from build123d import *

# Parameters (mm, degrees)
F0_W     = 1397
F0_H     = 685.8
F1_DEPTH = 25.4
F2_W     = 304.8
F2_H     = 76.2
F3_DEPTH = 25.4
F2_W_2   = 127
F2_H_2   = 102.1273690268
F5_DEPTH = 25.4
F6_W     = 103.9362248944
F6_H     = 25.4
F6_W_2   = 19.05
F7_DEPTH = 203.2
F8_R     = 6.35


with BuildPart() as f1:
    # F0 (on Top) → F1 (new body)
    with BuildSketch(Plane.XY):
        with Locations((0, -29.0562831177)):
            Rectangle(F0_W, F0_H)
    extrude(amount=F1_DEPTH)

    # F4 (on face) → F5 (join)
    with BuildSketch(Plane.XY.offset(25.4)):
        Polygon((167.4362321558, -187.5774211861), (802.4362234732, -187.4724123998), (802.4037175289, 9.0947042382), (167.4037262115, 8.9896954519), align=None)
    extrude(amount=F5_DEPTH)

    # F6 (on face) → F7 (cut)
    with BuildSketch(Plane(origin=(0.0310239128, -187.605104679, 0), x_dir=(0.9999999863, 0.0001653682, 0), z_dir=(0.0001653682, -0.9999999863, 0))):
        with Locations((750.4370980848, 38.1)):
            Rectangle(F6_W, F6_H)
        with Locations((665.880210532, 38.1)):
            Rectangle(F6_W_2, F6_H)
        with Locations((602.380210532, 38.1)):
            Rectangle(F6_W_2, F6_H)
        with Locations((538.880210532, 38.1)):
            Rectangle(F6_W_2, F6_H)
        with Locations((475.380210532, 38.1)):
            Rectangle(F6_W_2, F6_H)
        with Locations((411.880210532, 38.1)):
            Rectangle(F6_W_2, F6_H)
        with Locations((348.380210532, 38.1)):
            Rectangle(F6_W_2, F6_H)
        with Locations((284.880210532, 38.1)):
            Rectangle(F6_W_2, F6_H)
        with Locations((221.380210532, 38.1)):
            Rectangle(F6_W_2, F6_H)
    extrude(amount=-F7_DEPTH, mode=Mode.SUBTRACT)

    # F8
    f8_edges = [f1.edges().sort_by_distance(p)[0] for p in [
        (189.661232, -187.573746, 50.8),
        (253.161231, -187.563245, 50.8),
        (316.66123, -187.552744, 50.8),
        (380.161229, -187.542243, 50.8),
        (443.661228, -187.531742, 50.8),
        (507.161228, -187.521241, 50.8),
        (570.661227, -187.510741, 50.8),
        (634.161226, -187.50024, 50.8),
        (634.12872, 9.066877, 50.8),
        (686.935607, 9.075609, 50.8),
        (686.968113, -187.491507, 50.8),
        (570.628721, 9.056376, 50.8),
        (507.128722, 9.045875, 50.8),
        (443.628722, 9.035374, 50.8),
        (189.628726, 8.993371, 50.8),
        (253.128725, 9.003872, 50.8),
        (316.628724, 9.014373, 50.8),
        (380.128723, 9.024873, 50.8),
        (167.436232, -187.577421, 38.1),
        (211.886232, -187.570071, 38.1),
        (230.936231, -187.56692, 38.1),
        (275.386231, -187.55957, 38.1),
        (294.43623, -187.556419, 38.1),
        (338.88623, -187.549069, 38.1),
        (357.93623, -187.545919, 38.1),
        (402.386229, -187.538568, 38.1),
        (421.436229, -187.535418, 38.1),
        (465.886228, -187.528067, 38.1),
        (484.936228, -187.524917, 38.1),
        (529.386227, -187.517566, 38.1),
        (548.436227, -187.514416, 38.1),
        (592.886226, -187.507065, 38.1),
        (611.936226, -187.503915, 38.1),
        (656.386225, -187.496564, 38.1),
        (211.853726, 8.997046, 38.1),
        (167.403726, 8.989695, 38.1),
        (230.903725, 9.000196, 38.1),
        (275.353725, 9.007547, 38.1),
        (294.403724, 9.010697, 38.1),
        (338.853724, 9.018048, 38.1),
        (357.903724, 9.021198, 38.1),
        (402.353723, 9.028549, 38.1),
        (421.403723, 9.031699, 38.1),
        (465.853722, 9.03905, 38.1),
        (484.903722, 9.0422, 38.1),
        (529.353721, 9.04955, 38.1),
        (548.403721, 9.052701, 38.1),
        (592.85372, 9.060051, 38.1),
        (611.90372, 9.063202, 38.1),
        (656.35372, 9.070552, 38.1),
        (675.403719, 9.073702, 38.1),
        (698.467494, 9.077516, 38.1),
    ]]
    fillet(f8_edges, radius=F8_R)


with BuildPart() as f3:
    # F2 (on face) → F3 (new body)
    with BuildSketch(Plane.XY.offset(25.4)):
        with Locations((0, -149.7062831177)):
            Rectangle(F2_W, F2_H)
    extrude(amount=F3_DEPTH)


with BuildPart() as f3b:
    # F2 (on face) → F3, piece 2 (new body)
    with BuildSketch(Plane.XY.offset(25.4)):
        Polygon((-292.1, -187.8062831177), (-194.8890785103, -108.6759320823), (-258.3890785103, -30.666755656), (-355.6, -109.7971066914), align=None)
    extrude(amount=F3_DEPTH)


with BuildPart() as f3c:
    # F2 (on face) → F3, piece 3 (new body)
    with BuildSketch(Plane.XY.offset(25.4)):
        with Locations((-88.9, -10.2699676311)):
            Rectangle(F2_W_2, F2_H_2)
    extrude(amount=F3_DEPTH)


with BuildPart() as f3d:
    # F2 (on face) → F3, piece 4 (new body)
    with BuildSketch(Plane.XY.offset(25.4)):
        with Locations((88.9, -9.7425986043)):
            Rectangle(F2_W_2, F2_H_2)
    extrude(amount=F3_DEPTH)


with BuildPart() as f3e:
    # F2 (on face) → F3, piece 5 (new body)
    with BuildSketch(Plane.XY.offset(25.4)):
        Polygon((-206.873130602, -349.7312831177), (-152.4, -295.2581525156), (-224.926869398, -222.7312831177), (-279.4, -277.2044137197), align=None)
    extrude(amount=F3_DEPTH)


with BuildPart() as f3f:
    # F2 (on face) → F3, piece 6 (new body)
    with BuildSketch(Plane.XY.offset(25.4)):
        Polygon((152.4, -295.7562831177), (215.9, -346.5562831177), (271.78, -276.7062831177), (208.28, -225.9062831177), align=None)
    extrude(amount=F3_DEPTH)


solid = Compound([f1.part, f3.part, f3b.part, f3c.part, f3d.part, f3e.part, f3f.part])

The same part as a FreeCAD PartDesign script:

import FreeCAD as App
import Part
import Sketcher

V = App.Vector
Q = App.Units.Quantity


def edges_at(feature, points):
    """Names of the edges that pass closest to the given points."""
    edges = feature.Shape.Edges
    near = lambda p: min(range(len(edges)), key=lambda i: edges[i].distToShape(Part.Vertex(*p))[0])
    return sorted({f"Edge{near(p) + 1}" for p in points})


def add_polygon(sketch, points):
    """Adds a closed chain of lines whose ends are joined by coincident constraints."""
    first, n = sketch.GeometryCount, len(points)
    for a, b in zip(points, points[1:] + points[:1]):
        sketch.addGeometry(Part.LineSegment(App.Vector(*a, 0), App.Vector(*b, 0)), False)
    for i in range(n):
        sketch.addConstraint(Sketcher.Constraint("Coincident", first + i, 2, first + (i + 1) % n, 1))

doc = App.newDocument("Part")
body = doc.addObject("PartDesign::Body", "Body")

sketch1 = doc.addObject("Sketcher::SketchObject", "Sketch")
body.addObject(sketch1)
sketch1.AttachmentSupport = (doc.XY_Plane, [""])
sketch1.MapMode = "FlatFace"
add_polygon(sketch1, [(-698, 314), (-698, -372), (698, -372), (698, 314)])
sketch1.addConstraint(Sketcher.Constraint("Vertical", 0))
sketch1.addConstraint(Sketcher.Constraint("Horizontal", 1))
sketch1.addConstraint(Sketcher.Constraint("Vertical", 2))
sketch1.addConstraint(Sketcher.Constraint("Horizontal", 3))
sketch1.addConstraint(Sketcher.Constraint("DistanceX", 1, 1, 1, 2, Q("55 in")))
sketch1.addConstraint(Sketcher.Constraint("DistanceY", 0, 2, 0, 1, Q("27 in")))
sketch1.addConstraint(Sketcher.Constraint("DistanceX", 0, 2, -1, 1, Q("27.5 in")))
sketch1.addConstraint(Sketcher.Constraint("DistanceY", 0, 2, -1, 1, 371.956283))
pad1 = doc.addObject("PartDesign::Pad", "Pad")
body.addObject(pad1)
pad1.Profile = sketch1
pad1.Length = Q("1 in")

sketch2 = doc.addObject("Sketcher::SketchObject", "Sketch001")
body.addObject(sketch2)
sketch2.AttachmentSupport = (doc.XY_Plane, [""])
sketch2.MapMode = "FlatFace"
sketch2.AttachmentOffset = App.Placement(V(0, 0, 1 * 25.4), App.Rotation())
add_polygon(sketch2, [(167, -188), (802, -187), (802, 9), (167, 9)])
sketch2.addConstraint(Sketcher.Constraint("Perpendicular", 0, 1))
sketch2.addConstraint(Sketcher.Constraint("Perpendicular", 1, 2))
sketch2.addConstraint(Sketcher.Constraint("Perpendicular", 2, 3))
sketch2.addConstraint(Sketcher.Constraint("Distance", 0, Q("25 in")))
sketch2.addConstraint(Sketcher.Constraint("Distance", 1, 196.567119))
sketch2.addConstraint(Sketcher.Constraint("DistanceY", 3, 2, -1, 1, 187.577421))
sketch2.addConstraint(Sketcher.Constraint("DistanceY", 2, 2, 1, 2, 0.105009))
sketch2.addConstraint(Sketcher.Constraint("DistanceX", -1, 1, 0, 2, 802.436223))
pad2 = doc.addObject("PartDesign::Pad", "Pad001")
body.addObject(pad2)
pad2.Profile = sketch2
pad2.Length = Q("1 in")

sketch3 = doc.addObject("Sketcher::SketchObject", "Sketch002")
body.addObject(sketch3)
sketch3.Placement = App.Placement(V(0.031024, -187.605105, 0), App.Rotation(V(0.999999986, 0.000165368, 0), V(0, 0, 0.999999999), V(0.000165368, -0.999999986, 0), "ZXY"))
add_polygon(sketch3, [(698, 51), (698, 25), (802, 25), (802, 51)])
add_polygon(sketch3, [(656, 51), (656, 25), (675, 25), (675, 51)])
add_polygon(sketch3, [(593, 51), (593, 25), (612, 25), (612, 51)])
add_polygon(sketch3, [(529, 51), (529, 25), (548, 25), (548, 51)])
add_polygon(sketch3, [(466, 51), (466, 25), (485, 25), (485, 51)])
add_polygon(sketch3, [(402, 51), (402, 25), (421, 25), (421, 51)])
add_polygon(sketch3, [(339, 51), (339, 25), (358, 25), (358, 51)])
add_polygon(sketch3, [(275, 51), (275, 25), (294, 25), (294, 51)])
add_polygon(sketch3, [(212, 51), (212, 25), (231, 25), (231, 51)])
sketch3.addConstraint(Sketcher.Constraint("Vertical", 0))
sketch3.addConstraint(Sketcher.Constraint("Horizontal", 1))
sketch3.addConstraint(Sketcher.Constraint("Vertical", 2))
sketch3.addConstraint(Sketcher.Constraint("Horizontal", 3))
sketch3.addConstraint(Sketcher.Constraint("Vertical", 4))
sketch3.addConstraint(Sketcher.Constraint("Horizontal", 5))
sketch3.addConstraint(Sketcher.Constraint("Vertical", 6))
sketch3.addConstraint(Sketcher.Constraint("Horizontal", 7))
sketch3.addConstraint(Sketcher.Constraint("Vertical", 8))
sketch3.addConstraint(Sketcher.Constraint("Horizontal", 9))
sketch3.addConstraint(Sketcher.Constraint("Vertical", 10))
sketch3.addConstraint(Sketcher.Constraint("Horizontal", 11))
sketch3.addConstraint(Sketcher.Constraint("Vertical", 12))
sketch3.addConstraint(Sketcher.Constraint("Horizontal", 13))
sketch3.addConstraint(Sketcher.Constraint("Vertical", 14))
sketch3.addConstraint(Sketcher.Constraint("Horizontal", 15))
sketch3.addConstraint(Sketcher.Constraint("Vertical", 16))
sketch3.addConstraint(Sketcher.Constraint("Horizontal", 17))
sketch3.addConstraint(Sketcher.Constraint("Vertical", 18))
sketch3.addConstraint(Sketcher.Constraint("Horizontal", 19))
sketch3.addConstraint(Sketcher.Constraint("Vertical", 20))
sketch3.addConstraint(Sketcher.Constraint("Horizontal", 21))
sketch3.addConstraint(Sketcher.Constraint("Vertical", 22))
sketch3.addConstraint(Sketcher.Constraint("Horizontal", 23))
sketch3.addConstraint(Sketcher.Constraint("Vertical", 24))
sketch3.addConstraint(Sketcher.Constraint("Horizontal", 25))
sketch3.addConstraint(Sketcher.Constraint("Vertical", 26))
sketch3.addConstraint(Sketcher.Constraint("Horizontal", 27))
sketch3.addConstraint(Sketcher.Constraint("Vertical", 28))
sketch3.addConstraint(Sketcher.Constraint("Horizontal", 29))
sketch3.addConstraint(Sketcher.Constraint("Vertical", 30))
sketch3.addConstraint(Sketcher.Constraint("Horizontal", 31))
sketch3.addConstraint(Sketcher.Constraint("Vertical", 32))
sketch3.addConstraint(Sketcher.Constraint("Horizontal", 33))
sketch3.addConstraint(Sketcher.Constraint("Vertical", 34))
sketch3.addConstraint(Sketcher.Constraint("Horizontal", 35))
sketch3.addConstraint(Sketcher.Constraint("Horizontal", 1, 2, 4, 2))
sketch3.addConstraint(Sketcher.Constraint("Horizontal", 3, 2, 6, 2))
sketch3.addConstraint(Sketcher.Constraint("Horizontal", 5, 2, 8, 2))
sketch3.addConstraint(Sketcher.Constraint("Horizontal", 7, 2, 10, 2))
sketch3.addConstraint(Sketcher.Constraint("Horizontal", 9, 2, 12, 2))
sketch3.addConstraint(Sketcher.Constraint("Horizontal", 11, 2, 14, 2))
sketch3.addConstraint(Sketcher.Constraint("Horizontal", 13, 2, 16, 2))
sketch3.addConstraint(Sketcher.Constraint("Horizontal", 15, 2, 18, 2))
sketch3.addConstraint(Sketcher.Constraint("Horizontal", 17, 2, 20, 2))
sketch3.addConstraint(Sketcher.Constraint("Horizontal", 19, 2, 22, 2))
sketch3.addConstraint(Sketcher.Constraint("Horizontal", 21, 2, 24, 2))
sketch3.addConstraint(Sketcher.Constraint("Horizontal", 23, 2, 26, 2))
sketch3.addConstraint(Sketcher.Constraint("Horizontal", 25, 2, 28, 2))
sketch3.addConstraint(Sketcher.Constraint("Horizontal", 27, 2, 30, 2))
sketch3.addConstraint(Sketcher.Constraint("Horizontal", 29, 2, 32, 2))
sketch3.addConstraint(Sketcher.Constraint("Horizontal", 31, 2, 34, 2))
sketch3.addConstraint(Sketcher.Constraint("Equal", 7, 9))
sketch3.addConstraint(Sketcher.Constraint("Equal", 11, 13))
sketch3.addConstraint(Sketcher.Constraint("Equal", 15, 17))
sketch3.addConstraint(Sketcher.Constraint("Equal", 19, 21))
sketch3.addConstraint(Sketcher.Constraint("Equal", 23, 25))
sketch3.addConstraint(Sketcher.Constraint("Equal", 27, 29))
sketch3.addConstraint(Sketcher.Constraint("Equal", 31, 33))
sketch3.addConstraint(Sketcher.Constraint("DistanceY", 0, 2, 0, 1, Q("1 in")))
sketch3.addConstraint(Sketcher.Constraint("DistanceY", -1, 1, 0, 2, Q("1 in")))
sketch3.addConstraint(Sketcher.Constraint("DistanceX", 5, 2, 1, 2, Q("5 in")))
sketch3.addConstraint(Sketcher.Constraint("DistanceX", 12, 2, 4, 2, Q("5 in")))
sketch3.addConstraint(Sketcher.Constraint("DistanceX", 16, 2, 8, 2, Q("5 in")))
sketch3.addConstraint(Sketcher.Constraint("DistanceX", 20, 2, 12, 2, Q("5 in")))
sketch3.addConstraint(Sketcher.Constraint("DistanceX", 24, 2, 16, 2, Q("5 in")))
sketch3.addConstraint(Sketcher.Constraint("DistanceX", 28, 2, 20, 2, Q("5 in")))
sketch3.addConstraint(Sketcher.Constraint("DistanceX", 32, 2, 24, 2, Q("5 in")))
sketch3.addConstraint(Sketcher.Constraint("DistanceX", 5, 1, 5, 2, Q("0.75 in")))
sketch3.addConstraint(Sketcher.Constraint("DistanceX", 8, 2, 4, 2, Q("2.5 in")))
sketch3.addConstraint(Sketcher.Constraint("DistanceX", 1, 1, 1, 2, 103.936225))
sketch3.addConstraint(Sketcher.Constraint("DistanceX", -1, 1, 1, 2, 802.40521))
pocket1 = doc.addObject("PartDesign::Pocket", "Pocket")
body.addObject(pocket1)
pocket1.Profile = sketch3
pocket1.Length = Q("8 in")
doc.recompute()

fillet = doc.addObject("PartDesign::Fillet", "Fillet")
body.addObject(fillet)
fillet.Base = (pocket1, edges_at(pocket1, [
    (189.661, -187.574, 50.8),
    (253.161, -187.563, 50.8),
    (316.661, -187.553, 50.8),
    (380.161, -187.542, 50.8),
    (443.661, -187.532, 50.8),
    (507.161, -187.521, 50.8),
    (570.661, -187.511, 50.8),
    (634.161, -187.5, 50.8),
    (634.129, 9.067, 50.8),
    (686.936, 9.076, 50.8),
    (686.968, -187.492, 50.8),
    (570.629, 9.056, 50.8),
    (507.129, 9.046, 50.8),
    (443.629, 9.035, 50.8),
    (189.629, 8.993, 50.8),
    (253.129, 9.004, 50.8),
    (316.629, 9.014, 50.8),
    (380.129, 9.025, 50.8),
    (167.436, -187.577, 38.1),
    (211.886, -187.57, 38.1),
    (230.936, -187.567, 38.1),
    (275.386, -187.56, 38.1),
    (294.436, -187.556, 38.1),
    (338.886, -187.549, 38.1),
    (357.936, -187.546, 38.1),
    (402.386, -187.539, 38.1),
    (421.436, -187.535, 38.1),
    (465.886, -187.528, 38.1),
    (484.936, -187.525, 38.1),
    (529.386, -187.518, 38.1),
    (548.436, -187.514, 38.1),
    (592.886, -187.507, 38.1),
    (611.936, -187.504, 38.1),
    (656.386, -187.497, 38.1),
    (211.854, 8.997, 38.1),
    (167.404, 8.99, 38.1),
    (230.904, 9, 38.1),
    (275.354, 9.008, 38.1),
    (294.404, 9.011, 38.1),
    (338.854, 9.018, 38.1),
    (357.904, 9.021, 38.1),
    (402.354, 9.029, 38.1),
    (421.404, 9.032, 38.1),
    (465.854, 9.039, 38.1),
    (484.904, 9.042, 38.1),
    (529.354, 9.05, 38.1),
    (548.404, 9.053, 38.1),
    (592.854, 9.06, 38.1),
    (611.904, 9.063, 38.1),
    (656.354, 9.071, 38.1),
    (675.404, 9.074, 38.1),
    (698.467, 9.078, 38.1),
]))
fillet.Radius = Q("0.25 in")
body2 = doc.addObject("PartDesign::Body", "Body001")

sketch4 = doc.addObject("Sketcher::SketchObject", "Sketch003")
body2.addObject(sketch4)
sketch4.AttachmentSupport = (doc.getObject("XY_Plane001"), [""])
sketch4.MapMode = "FlatFace"
sketch4.AttachmentOffset = App.Placement(V(0, 0, 1 * 25.4), App.Rotation())
add_polygon(sketch4, [(-152, -112), (-152, -188), (152, -188), (152, -112)])
sketch4.addConstraint(Sketcher.Constraint("Vertical", 0))
sketch4.addConstraint(Sketcher.Constraint("Horizontal", 1))
sketch4.addConstraint(Sketcher.Constraint("Vertical", 2))
sketch4.addConstraint(Sketcher.Constraint("Horizontal", 3))
sketch4.addConstraint(Sketcher.Constraint("DistanceX", 1, 1, 1, 2, Q("12 in")))
sketch4.addConstraint(Sketcher.Constraint("DistanceY", 0, 2, 0, 1, Q("3 in")))
sketch4.addConstraint(Sketcher.Constraint("DistanceX", 0, 2, -1, 1, Q("6 in")))
sketch4.addConstraint(Sketcher.Constraint("DistanceY", 0, 2, -1, 1, 187.806283))
pad3 = doc.addObject("PartDesign::Pad", "Pad002")
body2.addObject(pad3)
pad3.Profile = sketch4
pad3.Length = Q("1 in")
body3 = doc.addObject("PartDesign::Body", "Body002")

sketch5 = doc.addObject("Sketcher::SketchObject", "Sketch004")
body3.addObject(sketch5)
sketch5.AttachmentSupport = (doc.getObject("XY_Plane002"), [""])
sketch5.MapMode = "FlatFace"
sketch5.AttachmentOffset = App.Placement(V(0, 0, 1 * 25.4), App.Rotation())
add_polygon(sketch5, [(-292, -188), (-195, -109), (-258, -31), (-356, -110)])
sketch5.addConstraint(Sketcher.Constraint("Perpendicular", 0, 1))
sketch5.addConstraint(Sketcher.Constraint("Perpendicular", 1, 2))
sketch5.addConstraint(Sketcher.Constraint("Perpendicular", 2, 3))
sketch5.addConstraint(Sketcher.Constraint("DistanceX", 2, 2, -1, 1, Q("14 in")))
sketch5.addConstraint(Sketcher.Constraint("DistanceX", 3, 2, -1, 1, Q("11.5 in")))
sketch5.addConstraint(Sketcher.Constraint("DistanceX", 0, 2, -1, 1, 194.889079))
sketch5.addConstraint(Sketcher.Constraint("DistanceY", 2, 2, 1, 2, 79.130351))
sketch5.addConstraint(Sketcher.Constraint("DistanceY", 0, 2, -1, 1, 108.675932))
pad4 = doc.addObject("PartDesign::Pad", "Pad003")
body3.addObject(pad4)
pad4.Profile = sketch5
pad4.Length = Q("1 in")
body4 = doc.addObject("PartDesign::Body", "Body003")

sketch6 = doc.addObject("Sketcher::SketchObject", "Sketch005")
body4.addObject(sketch6)
sketch6.AttachmentSupport = (doc.getObject("XY_Plane003"), [""])
sketch6.MapMode = "FlatFace"
sketch6.AttachmentOffset = App.Placement(V(0, 0, 1 * 25.4), App.Rotation())
add_polygon(sketch6, [(-152, 41), (-152, -61), (-25, -61), (-25, 41)])
sketch6.addConstraint(Sketcher.Constraint("Vertical", 0))
sketch6.addConstraint(Sketcher.Constraint("Horizontal", 1))
sketch6.addConstraint(Sketcher.Constraint("Vertical", 2))
sketch6.addConstraint(Sketcher.Constraint("Horizontal", 3))
sketch6.addConstraint(Sketcher.Constraint("DistanceX", 1, 1, 1, 2, Q("5 in")))
sketch6.addConstraint(Sketcher.Constraint("DistanceX", 0, 2, -1, 1, Q("6 in")))
sketch6.addConstraint(Sketcher.Constraint("DistanceY", 0, 2, 0, 1, 102.127369))
sketch6.addConstraint(Sketcher.Constraint("DistanceY", 0, 2, -1, 1, 61.333652))
pad5 = doc.addObject("PartDesign::Pad", "Pad004")
body4.addObject(pad5)
pad5.Profile = sketch6
pad5.Length = Q("1 in")
body5 = doc.addObject("PartDesign::Body", "Body004")

sketch7 = doc.addObject("Sketcher::SketchObject", "Sketch006")
body5.addObject(sketch7)
sketch7.AttachmentSupport = (doc.getObject("XY_Plane004"), [""])
sketch7.MapMode = "FlatFace"
sketch7.AttachmentOffset = App.Placement(V(0, 0, 1 * 25.4), App.Rotation())
add_polygon(sketch7, [(25, 41), (25, -61), (152, -61), (152, 41)])
sketch7.addConstraint(Sketcher.Constraint("Vertical", 0))
sketch7.addConstraint(Sketcher.Constraint("Horizontal", 1))
sketch7.addConstraint(Sketcher.Constraint("Vertical", 2))
sketch7.addConstraint(Sketcher.Constraint("Horizontal", 3))
sketch7.addConstraint(Sketcher.Constraint("DistanceX", 1, 1, 1, 2, Q("5 in")))
sketch7.addConstraint(Sketcher.Constraint("DistanceX", -1, 1, 0, 2, Q("1 in")))
sketch7.addConstraint(Sketcher.Constraint("DistanceY", 0, 2, 0, 1, 102.127369))
sketch7.addConstraint(Sketcher.Constraint("DistanceY", 0, 2, -1, 1, 60.806283))
pad6 = doc.addObject("PartDesign::Pad", "Pad005")
body5.addObject(pad6)
pad6.Profile = sketch7
pad6.Length = Q("1 in")
body6 = doc.addObject("PartDesign::Body", "Body005")

sketch8 = doc.addObject("Sketcher::SketchObject", "Sketch007")
body6.addObject(sketch8)
sketch8.AttachmentSupport = (doc.getObject("XY_Plane005"), [""])
sketch8.MapMode = "FlatFace"
sketch8.AttachmentOffset = App.Placement(V(0, 0, 1 * 25.4), App.Rotation())
add_polygon(sketch8, [(-207, -350), (-152, -295), (-225, -223), (-279, -277)])
sketch8.addConstraint(Sketcher.Constraint("Perpendicular", 0, 1))
sketch8.addConstraint(Sketcher.Constraint("Perpendicular", 1, 2))
sketch8.addConstraint(Sketcher.Constraint("Perpendicular", 2, 3))
sketch8.addConstraint(Sketcher.Constraint("DistanceX", 0, 2, -1, 1, Q("6 in")))
sketch8.addConstraint(Sketcher.Constraint("DistanceX", 2, 2, -1, 1, Q("11 in")))
sketch8.addConstraint(Sketcher.Constraint("Angle", 0, Q("45 deg")))
sketch8.addConstraint(Sketcher.Constraint("Distance", 0, 77.03664))
sketch8.addConstraint(Sketcher.Constraint("DistanceY", 0, 2, -1, 1, 295.258153))
pad7 = doc.addObject("PartDesign::Pad", "Pad006")
body6.addObject(pad7)
pad7.Profile = sketch8
pad7.Length = Q("1 in")
body7 = doc.addObject("PartDesign::Body", "Body006")

sketch9 = doc.addObject("Sketcher::SketchObject", "Sketch008")
body7.addObject(sketch9)
sketch9.AttachmentSupport = (doc.getObject("XY_Plane006"), [""])
sketch9.MapMode = "FlatFace"
sketch9.AttachmentOffset = App.Placement(V(0, 0, 1 * 25.4), App.Rotation())
add_polygon(sketch9, [(152, -296), (216, -347), (272, -277), (208, -226)])
sketch9.addConstraint(Sketcher.Constraint("Perpendicular", 0, 1))
sketch9.addConstraint(Sketcher.Constraint("Perpendicular", 1, 2))
sketch9.addConstraint(Sketcher.Constraint("Perpendicular", 2, 3))
sketch9.addConstraint(Sketcher.Constraint("DistanceX", -1, 1, 3, 2, Q("6 in")))
sketch9.addConstraint(Sketcher.Constraint("DistanceY", 1, 2, 2, 2, Q("2 in")))
sketch9.addConstraint(Sketcher.Constraint("DistanceX", -1, 1, 0, 2, Q("8.5 in")))
sketch9.addConstraint(Sketcher.Constraint("DistanceX", -1, 1, 1, 2, Q("10.7 in")))
sketch9.addConstraint(Sketcher.Constraint("DistanceY", 0, 2, -1, 1, 346.556283))
pad8 = doc.addObject("PartDesign::Pad", "Pad007")
body7.addObject(pad8)
pad8.Profile = sketch9
pad8.Length = Q("1 in")

doc.recompute()
